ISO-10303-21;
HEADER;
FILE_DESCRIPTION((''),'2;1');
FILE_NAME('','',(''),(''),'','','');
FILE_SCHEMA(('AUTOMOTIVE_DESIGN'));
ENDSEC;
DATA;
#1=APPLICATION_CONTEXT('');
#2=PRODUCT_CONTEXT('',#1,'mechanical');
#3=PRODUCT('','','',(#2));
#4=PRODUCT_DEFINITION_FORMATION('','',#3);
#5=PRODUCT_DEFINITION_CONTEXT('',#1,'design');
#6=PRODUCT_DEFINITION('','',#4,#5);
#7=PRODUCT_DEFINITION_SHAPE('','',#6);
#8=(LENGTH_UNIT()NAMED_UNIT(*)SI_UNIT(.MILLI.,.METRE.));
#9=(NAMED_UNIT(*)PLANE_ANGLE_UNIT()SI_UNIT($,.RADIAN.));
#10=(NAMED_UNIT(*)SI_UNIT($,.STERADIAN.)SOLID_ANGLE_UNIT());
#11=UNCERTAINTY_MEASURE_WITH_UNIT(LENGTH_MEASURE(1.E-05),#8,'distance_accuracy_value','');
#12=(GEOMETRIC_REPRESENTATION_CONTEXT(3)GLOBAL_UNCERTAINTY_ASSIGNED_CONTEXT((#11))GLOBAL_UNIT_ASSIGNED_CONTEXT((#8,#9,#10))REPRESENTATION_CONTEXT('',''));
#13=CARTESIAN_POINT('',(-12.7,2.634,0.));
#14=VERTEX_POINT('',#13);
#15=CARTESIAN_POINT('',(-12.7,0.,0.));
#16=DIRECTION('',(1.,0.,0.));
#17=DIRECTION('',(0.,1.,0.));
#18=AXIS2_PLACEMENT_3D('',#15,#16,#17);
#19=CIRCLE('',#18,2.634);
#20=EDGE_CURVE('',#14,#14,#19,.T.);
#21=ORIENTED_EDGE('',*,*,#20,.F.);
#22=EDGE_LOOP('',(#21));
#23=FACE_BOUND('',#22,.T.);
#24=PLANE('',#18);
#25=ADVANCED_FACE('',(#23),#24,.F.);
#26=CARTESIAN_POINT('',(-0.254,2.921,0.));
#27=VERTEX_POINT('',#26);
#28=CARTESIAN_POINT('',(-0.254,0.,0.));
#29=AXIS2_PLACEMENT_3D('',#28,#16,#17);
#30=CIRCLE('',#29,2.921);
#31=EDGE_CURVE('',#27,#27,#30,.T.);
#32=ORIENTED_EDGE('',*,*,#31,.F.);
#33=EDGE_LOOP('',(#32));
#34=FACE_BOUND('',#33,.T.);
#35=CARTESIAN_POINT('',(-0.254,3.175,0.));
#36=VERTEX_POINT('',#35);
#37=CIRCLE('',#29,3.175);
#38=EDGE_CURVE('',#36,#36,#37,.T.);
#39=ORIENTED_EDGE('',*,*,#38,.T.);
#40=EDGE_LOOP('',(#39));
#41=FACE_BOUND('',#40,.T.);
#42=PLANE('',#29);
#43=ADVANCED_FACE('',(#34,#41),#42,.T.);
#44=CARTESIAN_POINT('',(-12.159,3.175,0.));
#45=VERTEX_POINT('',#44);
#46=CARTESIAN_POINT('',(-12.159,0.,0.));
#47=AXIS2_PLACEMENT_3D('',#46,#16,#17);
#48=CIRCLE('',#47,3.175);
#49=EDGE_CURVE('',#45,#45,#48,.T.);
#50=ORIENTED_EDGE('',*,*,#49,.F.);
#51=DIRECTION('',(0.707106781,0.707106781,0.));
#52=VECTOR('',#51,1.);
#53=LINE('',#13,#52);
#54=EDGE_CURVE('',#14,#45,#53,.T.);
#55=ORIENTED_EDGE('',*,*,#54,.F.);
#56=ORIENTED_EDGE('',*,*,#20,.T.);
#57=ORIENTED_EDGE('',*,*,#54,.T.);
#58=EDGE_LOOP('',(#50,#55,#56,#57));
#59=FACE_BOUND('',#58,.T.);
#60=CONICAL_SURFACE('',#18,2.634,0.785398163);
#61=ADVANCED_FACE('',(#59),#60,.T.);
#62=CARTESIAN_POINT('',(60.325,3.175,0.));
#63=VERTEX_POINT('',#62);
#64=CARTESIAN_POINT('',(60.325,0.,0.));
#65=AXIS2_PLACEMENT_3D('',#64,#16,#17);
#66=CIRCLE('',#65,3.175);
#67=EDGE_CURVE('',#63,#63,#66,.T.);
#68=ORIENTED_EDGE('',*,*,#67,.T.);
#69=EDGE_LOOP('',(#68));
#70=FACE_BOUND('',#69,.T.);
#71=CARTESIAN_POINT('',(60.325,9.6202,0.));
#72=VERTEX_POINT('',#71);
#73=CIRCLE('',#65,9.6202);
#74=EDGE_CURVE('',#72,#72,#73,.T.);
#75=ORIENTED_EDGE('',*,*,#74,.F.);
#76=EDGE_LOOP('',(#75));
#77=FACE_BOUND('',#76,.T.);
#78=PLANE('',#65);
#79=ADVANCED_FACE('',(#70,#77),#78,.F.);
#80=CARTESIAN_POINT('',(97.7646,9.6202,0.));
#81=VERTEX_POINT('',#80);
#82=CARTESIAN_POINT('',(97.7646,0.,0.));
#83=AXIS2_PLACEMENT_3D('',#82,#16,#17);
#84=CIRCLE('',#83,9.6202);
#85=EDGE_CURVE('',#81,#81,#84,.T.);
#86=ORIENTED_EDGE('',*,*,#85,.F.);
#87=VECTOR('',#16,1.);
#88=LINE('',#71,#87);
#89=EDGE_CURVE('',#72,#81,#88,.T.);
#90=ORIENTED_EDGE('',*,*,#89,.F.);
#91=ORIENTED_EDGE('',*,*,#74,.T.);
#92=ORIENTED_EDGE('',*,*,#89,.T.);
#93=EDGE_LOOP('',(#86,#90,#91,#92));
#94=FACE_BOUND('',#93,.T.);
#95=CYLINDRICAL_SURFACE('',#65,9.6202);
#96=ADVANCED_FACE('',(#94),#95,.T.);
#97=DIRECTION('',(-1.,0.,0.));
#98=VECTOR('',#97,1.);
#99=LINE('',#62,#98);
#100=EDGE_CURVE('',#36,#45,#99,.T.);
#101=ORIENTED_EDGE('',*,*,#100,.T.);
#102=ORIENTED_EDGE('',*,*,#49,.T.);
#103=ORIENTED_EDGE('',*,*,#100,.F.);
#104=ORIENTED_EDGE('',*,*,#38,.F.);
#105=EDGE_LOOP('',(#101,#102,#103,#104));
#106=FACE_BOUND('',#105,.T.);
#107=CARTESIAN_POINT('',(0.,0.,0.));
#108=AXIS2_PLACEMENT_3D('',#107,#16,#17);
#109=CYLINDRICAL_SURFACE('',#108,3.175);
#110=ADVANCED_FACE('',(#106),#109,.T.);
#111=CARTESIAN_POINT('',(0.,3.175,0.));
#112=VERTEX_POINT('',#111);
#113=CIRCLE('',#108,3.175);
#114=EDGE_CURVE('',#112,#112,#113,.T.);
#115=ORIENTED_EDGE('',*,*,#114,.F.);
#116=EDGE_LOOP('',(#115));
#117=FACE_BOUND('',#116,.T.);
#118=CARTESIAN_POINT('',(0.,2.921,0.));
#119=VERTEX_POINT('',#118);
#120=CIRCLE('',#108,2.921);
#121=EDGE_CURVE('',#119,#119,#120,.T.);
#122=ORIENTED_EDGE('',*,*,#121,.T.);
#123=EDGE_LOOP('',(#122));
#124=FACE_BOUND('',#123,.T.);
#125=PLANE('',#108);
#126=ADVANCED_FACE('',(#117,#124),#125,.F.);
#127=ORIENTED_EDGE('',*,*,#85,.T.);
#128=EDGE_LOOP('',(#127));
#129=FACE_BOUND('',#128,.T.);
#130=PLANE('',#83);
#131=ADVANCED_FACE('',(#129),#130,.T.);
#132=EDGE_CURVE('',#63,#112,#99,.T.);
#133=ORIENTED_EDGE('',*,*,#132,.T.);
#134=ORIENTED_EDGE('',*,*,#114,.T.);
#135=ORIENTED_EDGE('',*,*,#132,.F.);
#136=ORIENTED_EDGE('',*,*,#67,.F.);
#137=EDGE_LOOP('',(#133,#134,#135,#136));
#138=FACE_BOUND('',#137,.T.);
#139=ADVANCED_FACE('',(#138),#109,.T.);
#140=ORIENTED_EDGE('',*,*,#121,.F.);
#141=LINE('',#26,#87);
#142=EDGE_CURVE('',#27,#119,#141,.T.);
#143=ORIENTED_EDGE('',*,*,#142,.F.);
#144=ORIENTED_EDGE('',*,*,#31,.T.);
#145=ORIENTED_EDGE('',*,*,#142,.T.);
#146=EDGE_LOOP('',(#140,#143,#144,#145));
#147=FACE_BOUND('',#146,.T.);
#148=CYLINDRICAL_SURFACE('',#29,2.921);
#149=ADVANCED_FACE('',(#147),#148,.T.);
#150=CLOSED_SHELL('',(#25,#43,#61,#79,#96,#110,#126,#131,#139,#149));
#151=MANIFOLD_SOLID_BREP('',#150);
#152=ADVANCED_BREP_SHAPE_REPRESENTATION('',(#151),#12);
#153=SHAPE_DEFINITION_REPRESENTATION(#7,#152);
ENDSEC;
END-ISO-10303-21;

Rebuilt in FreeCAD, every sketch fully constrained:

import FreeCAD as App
import Part
import Sketcher
Q = App.Units.Quantity

doc = App.newDocument("Part")
body = doc.addObject("PartDesign::Body", "Body")

# Sketch on XY plane
sketch1 = body.newObject("Sketcher::SketchObject", "Sketch")
sketch1.AttachmentSupport = (doc.getObject("XY_Plane"), [""])
sketch1.MapMode = "FlatFace"
sketch1.addGeometry(Part.LineSegment(App.Vector(0, 0, 0), App.Vector(97.7646, 0, 0)), False)
sketch1.addGeometry(Part.LineSegment(App.Vector(97.7646, 0, 0), App.Vector(97.7646, 9.6202, 0)), False)
sketch1.addGeometry(Part.LineSegment(App.Vector(97.7646, 9.6202, 0), App.Vector(60.325, 9.6202, 0)), False)
sketch1.addGeometry(Part.LineSegment(App.Vector(60.325, 9.6202, 0), App.Vector(60.325, 3.175, 0)), False)
sketch1.addGeometry(Part.LineSegment(App.Vector(60.325, 3.175, 0), App.Vector(0, 3.175, 0)), False)
sketch1.addGeometry(Part.LineSegment(App.Vector(0, 3.175, 0), App.Vector(0, 0, 0)), False)
sketch1.addConstraint(Sketcher.Constraint("Coincident", 0, 2, 1, 1))
sketch1.addConstraint(Sketcher.Constraint("Coincident", 1, 2, 2, 1))
sketch1.addConstraint(Sketcher.Constraint("Coincident", 2, 2, 3, 1))
sketch1.addConstraint(Sketcher.Constraint("Coincident", 3, 2, 4, 1))
sketch1.addConstraint(Sketcher.Constraint("Coincident", 4, 2, 5, 1))
sketch1.addConstraint(Sketcher.Constraint("Coincident", 5, 2, 0, 1))
sketch1.addConstraint(Sketcher.Constraint("Horizontal", 0))
sketch1.addConstraint(Sketcher.Constraint("Vertical", 1))
sketch1.addConstraint(Sketcher.Constraint("Horizontal", 2))
sketch1.addConstraint(Sketcher.Constraint("Vertical", 3))
sketch1.addConstraint(Sketcher.Constraint("Horizontal", 4))
sketch1.addConstraint(Sketcher.Constraint("Vertical", 5))
sketch1.addConstraint(Sketcher.Constraint("Coincident", 5, 2, -1, 1))
sketch1.addConstraint(Sketcher.Constraint("DistanceX", 0, 1, 0, 2, Q("3.849 in")))
sketch1.addConstraint(Sketcher.Constraint("DistanceX", 2, 2, 2, 1, Q("1.474 in")))
sketch1.addConstraint(Sketcher.Constraint("DistanceY", 5, 2, 5, 1, Q("0.125 in")))
sketch1.addConstraint(Sketcher.Constraint("DistanceY", 1, 1, 1, 2, Q("9.6202 mm")))
revolution = body.newObject("PartDesign::Revolution", "Revolution")
revolution.Profile = sketch1
revolution.ReferenceAxis = (sketch1, ["H_Axis"])
revolution.Angle = 360

# Sketch on XY plane
sketch2 = body.newObject("Sketcher::SketchObject", "Sketch001")
sketch2.AttachmentSupport = (doc.getObject("XY_Plane"), [""])
sketch2.MapMode = "FlatFace"
sketch2.addGeometry(Part.LineSegment(App.Vector(-12.7, 0, 0), App.Vector(0, 0, 0)), False)
sketch2.addGeometry(Part.LineSegment(App.Vector(0, 0, 0), App.Vector(0, 3.175, 0)), False)
sketch2.addGeometry(Part.LineSegment(App.Vector(0, 3.175, 0), App.Vector(-12.159, 3.175, 0)), False)
sketch2.addGeometry(Part.LineSegment(App.Vector(-12.159, 3.175, 0), App.Vector(-12.7, 2.634, 0)), False)
sketch2.addGeometry(Part.LineSegment(App.Vector(-12.7, 2.634, 0), App.Vector(-12.7, 0, 0)), False)
sketch2.addConstraint(Sketcher.Constraint("Coincident", 0, 2, 1, 1))
sketch2.addConstraint(Sketcher.Constraint("Coincident", 1, 2, 2, 1))
sketch2.addConstraint(Sketcher.Constraint("Coincident", 2, 2, 3, 1))
sketch2.addConstraint(Sketcher.Constraint("Coincident", 3, 2, 4, 1))
sketch2.addConstraint(Sketcher.Constraint("Coincident", 4, 2, 0, 1))
sketch2.addConstraint(Sketcher.Constraint("Horizontal", 0))
sketch2.addConstraint(Sketcher.Constraint("Vertical", 1))
sketch2.addConstraint(Sketcher.Constraint("Horizontal", 2))
sketch2.addConstraint(Sketcher.Constraint("Vertical", 4))
sketch2.addConstraint(Sketcher.Constraint("Coincident", 0, 2, -1, 1))
sketch2.addConstraint(Sketcher.Constraint("DistanceX", 0, 1, 0, 2, Q("0.5 in")))
sketch2.addConstraint(Sketcher.Constraint("Angle", 3, Q("-135 deg")))
sketch2.addConstraint(Sketcher.Constraint("DistanceY", 1, 1, 1, 2, Q("0.125 in")))
sketch2.addConstraint(Sketcher.Constraint("DistanceX", 2, 2, 2, 1, Q("0.4787 in")))
revolution2 = body.newObject("PartDesign::Revolution", "Revolution001")
revolution2.Profile = sketch2
revolution2.ReferenceAxis = (sketch2, ["H_Axis"])
revolution2.Angle = 360

# Sketch on XY plane
sketch3 = body.newObject("Sketcher::SketchObject", "Sketch002")
sketch3.AttachmentSupport = (doc.getObject("XY_Plane"), [""])
sketch3.MapMode = "FlatFace"
sketch3.addGeometry(Part.LineSegment(App.Vector(-0.254, 3.429, 0), App.Vector(-0.254, 2.921, 0)), False)
sketch3.addGeometry(Part.LineSegment(App.Vector(-0.254, 2.921, 0), App.Vector(0, 2.921, 0)), False)
sketch3.addGeometry(Part.LineSegment(App.Vector(0, 2.921, 0), App.Vector(0, 3.429, 0)), False)
sketch3.addGeometry(Part.LineSegment(App.Vector(0, 3.429, 0), App.Vector(-0.254, 3.429, 0)), False)
sketch3.addConstraint(Sketcher.Constraint("Coincident", 0, 2, 1, 1))
sketch3.addConstraint(Sketcher.Constraint("Coincident", 1, 2, 2, 1))
sketch3.addConstraint(Sketcher.Constraint("Coincident", 2, 2, 3, 1))
sketch3.addConstraint(Sketcher.Constraint("Coincident", 3, 2, 0, 1))
sketch3.addConstraint(Sketcher.Constraint("Vertical", 0))
sketch3.addConstraint(Sketcher.Constraint("Horizontal", 1))
sketch3.addConstraint(Sketcher.Constraint("Vertical", 2))
sketch3.addConstraint(Sketcher.Constraint("Horizontal", 3))
sketch3.addConstraint(Sketcher.Constraint("PointOnObject", 1, 2, -2))
sketch3.addConstraint(Sketcher.Constraint("DistanceX", 1, 1, 1, 2, Q("0.01 in")))
sketch3.addConstraint(Sketcher.Constraint("DistanceY", 0, 2, 0, 1, Q("0.02 in")))
sketch3.addConstraint(Sketcher.Constraint("DistanceY", -1, 1, 0, 2, Q("0.115 in")))
groove = body.newObject("PartDesign::Groove", "Groove")
groove.Profile = sketch3
groove.ReferenceAxis = (sketch3, ["H_Axis"])
groove.Angle = 360

doc.recompute()
